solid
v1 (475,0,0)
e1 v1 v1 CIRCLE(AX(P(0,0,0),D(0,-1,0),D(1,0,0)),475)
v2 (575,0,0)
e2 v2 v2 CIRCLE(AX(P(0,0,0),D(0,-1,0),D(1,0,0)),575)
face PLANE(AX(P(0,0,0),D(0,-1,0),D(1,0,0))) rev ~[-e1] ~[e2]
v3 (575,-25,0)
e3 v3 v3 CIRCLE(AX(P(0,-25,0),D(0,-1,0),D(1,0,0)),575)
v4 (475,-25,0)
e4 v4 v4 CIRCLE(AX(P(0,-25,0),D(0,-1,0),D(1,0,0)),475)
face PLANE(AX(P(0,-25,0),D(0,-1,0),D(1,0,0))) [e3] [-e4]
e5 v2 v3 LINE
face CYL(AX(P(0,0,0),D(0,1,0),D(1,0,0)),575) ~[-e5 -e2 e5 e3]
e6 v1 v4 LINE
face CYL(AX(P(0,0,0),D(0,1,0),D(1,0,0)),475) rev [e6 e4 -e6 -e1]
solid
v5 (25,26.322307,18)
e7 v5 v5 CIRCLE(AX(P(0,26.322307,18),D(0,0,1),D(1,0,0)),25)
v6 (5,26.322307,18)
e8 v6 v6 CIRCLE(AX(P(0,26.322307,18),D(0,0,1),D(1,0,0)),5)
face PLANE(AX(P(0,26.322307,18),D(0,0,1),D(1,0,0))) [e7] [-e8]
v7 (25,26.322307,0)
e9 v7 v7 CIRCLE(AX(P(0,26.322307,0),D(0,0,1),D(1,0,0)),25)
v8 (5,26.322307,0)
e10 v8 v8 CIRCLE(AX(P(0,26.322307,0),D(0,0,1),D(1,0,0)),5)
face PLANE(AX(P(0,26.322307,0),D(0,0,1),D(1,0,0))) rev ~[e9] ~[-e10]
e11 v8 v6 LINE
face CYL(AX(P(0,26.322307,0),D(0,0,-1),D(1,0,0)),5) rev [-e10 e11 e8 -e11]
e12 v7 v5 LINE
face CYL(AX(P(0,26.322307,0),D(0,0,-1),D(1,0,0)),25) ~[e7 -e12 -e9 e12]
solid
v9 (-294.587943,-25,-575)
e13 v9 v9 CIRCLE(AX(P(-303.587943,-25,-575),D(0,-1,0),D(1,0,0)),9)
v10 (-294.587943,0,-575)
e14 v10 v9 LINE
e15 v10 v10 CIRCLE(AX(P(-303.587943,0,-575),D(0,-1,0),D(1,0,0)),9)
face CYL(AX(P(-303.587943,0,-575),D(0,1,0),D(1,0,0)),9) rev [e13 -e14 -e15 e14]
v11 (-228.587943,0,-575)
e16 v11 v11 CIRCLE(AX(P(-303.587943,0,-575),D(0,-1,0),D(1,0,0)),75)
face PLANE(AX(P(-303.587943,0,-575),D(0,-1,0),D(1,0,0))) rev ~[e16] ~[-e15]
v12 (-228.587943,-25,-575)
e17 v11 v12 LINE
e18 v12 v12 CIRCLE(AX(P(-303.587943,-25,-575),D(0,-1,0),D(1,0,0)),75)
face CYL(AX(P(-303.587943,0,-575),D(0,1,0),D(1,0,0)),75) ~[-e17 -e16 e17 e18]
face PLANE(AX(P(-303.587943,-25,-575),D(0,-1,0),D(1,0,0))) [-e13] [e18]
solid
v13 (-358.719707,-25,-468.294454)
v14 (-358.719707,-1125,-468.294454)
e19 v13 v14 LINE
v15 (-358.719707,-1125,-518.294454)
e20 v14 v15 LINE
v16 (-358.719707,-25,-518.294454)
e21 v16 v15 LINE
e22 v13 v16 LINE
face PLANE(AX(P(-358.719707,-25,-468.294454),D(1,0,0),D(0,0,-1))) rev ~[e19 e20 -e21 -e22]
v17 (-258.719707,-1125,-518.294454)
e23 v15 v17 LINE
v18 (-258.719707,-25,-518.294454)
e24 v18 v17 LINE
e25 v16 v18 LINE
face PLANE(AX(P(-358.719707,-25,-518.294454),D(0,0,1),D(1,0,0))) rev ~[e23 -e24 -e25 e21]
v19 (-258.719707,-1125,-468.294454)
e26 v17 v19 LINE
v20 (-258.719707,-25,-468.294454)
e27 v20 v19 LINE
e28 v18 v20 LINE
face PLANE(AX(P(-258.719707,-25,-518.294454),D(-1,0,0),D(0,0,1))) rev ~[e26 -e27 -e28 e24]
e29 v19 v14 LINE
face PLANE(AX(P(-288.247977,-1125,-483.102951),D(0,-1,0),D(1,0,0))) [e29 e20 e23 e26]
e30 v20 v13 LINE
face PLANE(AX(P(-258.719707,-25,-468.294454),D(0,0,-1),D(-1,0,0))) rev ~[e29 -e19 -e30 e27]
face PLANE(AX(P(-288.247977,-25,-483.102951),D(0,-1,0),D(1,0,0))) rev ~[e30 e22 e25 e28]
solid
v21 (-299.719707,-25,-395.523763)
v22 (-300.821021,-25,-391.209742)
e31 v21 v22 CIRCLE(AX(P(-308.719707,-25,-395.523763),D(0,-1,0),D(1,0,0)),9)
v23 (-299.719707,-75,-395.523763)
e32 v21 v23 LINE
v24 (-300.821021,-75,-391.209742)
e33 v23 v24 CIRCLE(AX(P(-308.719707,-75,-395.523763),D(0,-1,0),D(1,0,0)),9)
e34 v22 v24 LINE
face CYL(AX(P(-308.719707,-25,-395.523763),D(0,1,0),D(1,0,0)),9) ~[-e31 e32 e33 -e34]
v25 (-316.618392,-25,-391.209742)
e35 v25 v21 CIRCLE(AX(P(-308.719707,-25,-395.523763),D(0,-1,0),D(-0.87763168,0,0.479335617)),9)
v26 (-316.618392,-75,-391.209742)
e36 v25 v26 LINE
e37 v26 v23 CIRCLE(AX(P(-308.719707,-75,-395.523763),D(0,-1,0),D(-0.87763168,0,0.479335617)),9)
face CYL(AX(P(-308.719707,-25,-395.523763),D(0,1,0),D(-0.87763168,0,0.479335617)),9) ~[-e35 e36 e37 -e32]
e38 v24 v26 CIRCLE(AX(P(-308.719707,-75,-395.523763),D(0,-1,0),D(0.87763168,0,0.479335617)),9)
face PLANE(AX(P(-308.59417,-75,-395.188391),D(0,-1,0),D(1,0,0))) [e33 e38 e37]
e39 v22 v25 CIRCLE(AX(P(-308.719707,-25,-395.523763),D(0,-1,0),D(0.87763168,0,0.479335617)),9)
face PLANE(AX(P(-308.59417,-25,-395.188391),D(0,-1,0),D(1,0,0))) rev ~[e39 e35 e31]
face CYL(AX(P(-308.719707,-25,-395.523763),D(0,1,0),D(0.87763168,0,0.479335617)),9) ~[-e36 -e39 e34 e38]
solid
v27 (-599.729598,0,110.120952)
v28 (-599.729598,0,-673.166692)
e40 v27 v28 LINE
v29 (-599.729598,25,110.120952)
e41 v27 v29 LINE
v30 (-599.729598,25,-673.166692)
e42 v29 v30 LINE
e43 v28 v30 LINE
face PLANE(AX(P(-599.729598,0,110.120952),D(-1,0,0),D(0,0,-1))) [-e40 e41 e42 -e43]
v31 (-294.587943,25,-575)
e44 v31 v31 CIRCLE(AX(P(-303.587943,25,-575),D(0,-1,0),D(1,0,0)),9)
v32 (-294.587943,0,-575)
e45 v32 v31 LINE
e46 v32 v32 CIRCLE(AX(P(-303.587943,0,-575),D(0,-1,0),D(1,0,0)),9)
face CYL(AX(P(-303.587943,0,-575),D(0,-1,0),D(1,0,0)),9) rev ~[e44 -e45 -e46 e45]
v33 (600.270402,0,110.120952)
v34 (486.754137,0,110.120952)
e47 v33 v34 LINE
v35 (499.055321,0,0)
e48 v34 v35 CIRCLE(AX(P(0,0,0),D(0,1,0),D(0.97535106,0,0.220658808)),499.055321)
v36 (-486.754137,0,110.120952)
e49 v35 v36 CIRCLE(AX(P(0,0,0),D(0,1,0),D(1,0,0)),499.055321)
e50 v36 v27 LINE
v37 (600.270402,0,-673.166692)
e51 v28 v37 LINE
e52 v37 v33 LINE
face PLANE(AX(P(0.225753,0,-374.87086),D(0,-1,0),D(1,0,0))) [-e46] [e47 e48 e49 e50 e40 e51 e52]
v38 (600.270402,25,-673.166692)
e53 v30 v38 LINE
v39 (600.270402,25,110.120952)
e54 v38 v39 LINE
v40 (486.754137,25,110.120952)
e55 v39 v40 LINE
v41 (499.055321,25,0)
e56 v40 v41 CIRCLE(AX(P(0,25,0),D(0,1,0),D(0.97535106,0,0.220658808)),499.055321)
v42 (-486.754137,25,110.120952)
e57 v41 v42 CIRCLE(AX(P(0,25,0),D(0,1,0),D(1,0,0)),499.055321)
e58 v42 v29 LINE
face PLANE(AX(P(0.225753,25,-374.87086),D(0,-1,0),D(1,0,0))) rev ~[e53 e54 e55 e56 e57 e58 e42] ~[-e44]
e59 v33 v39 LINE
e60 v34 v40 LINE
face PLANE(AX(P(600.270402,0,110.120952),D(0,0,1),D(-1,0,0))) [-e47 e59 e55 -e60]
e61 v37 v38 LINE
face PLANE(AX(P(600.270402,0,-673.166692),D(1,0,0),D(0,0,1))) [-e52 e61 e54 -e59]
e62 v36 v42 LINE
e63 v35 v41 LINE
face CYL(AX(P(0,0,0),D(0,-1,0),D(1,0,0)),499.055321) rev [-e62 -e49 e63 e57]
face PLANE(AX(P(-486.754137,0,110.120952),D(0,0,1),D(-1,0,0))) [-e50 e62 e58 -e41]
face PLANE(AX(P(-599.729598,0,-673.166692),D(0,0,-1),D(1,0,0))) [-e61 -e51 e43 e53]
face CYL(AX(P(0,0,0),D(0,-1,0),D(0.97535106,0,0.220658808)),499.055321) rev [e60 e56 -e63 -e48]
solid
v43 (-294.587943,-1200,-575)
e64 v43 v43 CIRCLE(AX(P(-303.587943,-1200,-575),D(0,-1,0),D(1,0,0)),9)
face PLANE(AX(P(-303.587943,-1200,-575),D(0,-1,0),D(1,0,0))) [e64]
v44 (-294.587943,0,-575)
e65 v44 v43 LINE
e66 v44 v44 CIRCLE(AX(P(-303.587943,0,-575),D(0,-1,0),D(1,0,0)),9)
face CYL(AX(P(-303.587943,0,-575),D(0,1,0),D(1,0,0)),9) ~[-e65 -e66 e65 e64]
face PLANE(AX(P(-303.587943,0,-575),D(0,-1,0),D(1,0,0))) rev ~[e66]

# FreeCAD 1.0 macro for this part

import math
import FreeCAD as App
import Part
import Sketcher
from FreeCAD import Vector
Q = App.Units.Quantity

doc = App.newDocument("Part")
body = doc.addObject("PartDesign::Body", "Body")

# Sketch on XZ plane
sketch1 = doc.addObject("Sketcher::SketchObject", "Sketch")
body.addObject(sketch1)
sketch1.AttachmentSupport = (doc.XZ_Plane, [""])
sketch1.MapMode = "FlatFace"
sketch1.addGeometry([
    Part.Circle(Vector(0, 0, 0), Vector(0, 0, 1), 575),
    Part.Circle(Vector(0, 0, 0), Vector(0, 0, 1), 475),
], False)
sketch1.addConstraint([
    Sketcher.Constraint("Coincident", 0, 3, -1, 1),
    Sketcher.Constraint("Coincident", 1, 3, -1, 1),
    Sketcher.Constraint("Diameter", 0, Q("1150 mm")),
    Sketcher.Constraint("Diameter", 1, Q("950 mm")),
])
pad1 = doc.addObject("PartDesign::Pad", "Pad")
body.addObject(pad1)
pad1.Profile = sketch1
pad1.Length = 25
body2 = doc.addObject("PartDesign::Body", "Body001")

# Sketch on XZ plane
sketch2 = doc.addObject("Sketcher::SketchObject", "Sketch001")
body2.addObject(sketch2)
sketch2.AttachmentSupport = (doc.getObject("XZ_Plane001"), [""])
sketch2.MapMode = "FlatFace"
sketch2.addGeometry([
    Part.Circle(Vector(-304, -575, 0), Vector(0, 0, 1), 75),
    Part.Circle(Vector(-304, -575, 0), Vector(0, 0, 1), 9),
], False)
sketch2.addConstraint([
    Sketcher.Constraint("Coincident", 1, 3, 0, 3),
    Sketcher.Constraint("Diameter", 0, Q("150 mm")),
    Sketcher.Constraint("Diameter", 1, Q("18 mm")),
    Sketcher.Constraint("DistanceY", 0, 3, -1, 1, Q("575 mm")),
    Sketcher.Constraint("DistanceX", 0, 3, -1, 1, Q("303.587943 mm")),
])
pad2 = doc.addObject("PartDesign::Pad", "Pad001")
body2.addObject(pad2)
pad2.Profile = sketch2
pad2.Length = 25
body3 = doc.addObject("PartDesign::Body", "Body002")

# Sketch on XZ plane
sketch3 = doc.addObject("Sketcher::SketchObject", "Sketch002")
body3.addObject(sketch3)
sketch3.AttachmentSupport = (doc.getObject("XZ_Plane002"), [""])
sketch3.MapMode = "FlatFace"
sketch3.addGeometry(Part.Circle(Vector(-304, -575, 0), Vector(0, 0, 1), 9), False)
sketch3.addConstraint([
    Sketcher.Constraint("Diameter", 0, Q("18 mm")),
    Sketcher.Constraint("DistanceY", 0, 3, -1, 1, Q("575 mm")),
    Sketcher.Constraint("DistanceX", 0, 3, -1, 1, Q("303.587943 mm")),
])
pad3 = doc.addObject("PartDesign::Pad", "Pad002")
body3.addObject(pad3)
pad3.Profile = sketch3
pad3.Length = 1200
body4 = doc.addObject("PartDesign::Body", "Body003")

# Sketch on XY plane
sketch4 = doc.addObject("Sketcher::SketchObject", "Sketch003")
body4.addObject(sketch4)
sketch4.AttachmentSupport = (doc.getObject("XY_Plane003"), [""])
sketch4.MapMode = "FlatFace"
sketch4.addGeometry([
    Part.Circle(Vector(0, 26, 0), Vector(0, 0, 1), 25),
    Part.Circle(Vector(0, 26, 0), Vector(0, 0, 1), 5),
], False)
sketch4.addConstraint([
    Sketcher.Constraint("Coincident", 1, 3, 0, 3),
    Sketcher.Constraint("PointOnObject", 0, 3, -2),
    Sketcher.Constraint("Diameter", 0, Q("50 mm")),
    Sketcher.Constraint("Diameter", 1, Q("10 mm")),
    Sketcher.Constraint("DistanceY", -1, 1, 0, 3, Q("26.322307 mm")),
])
pad4 = doc.addObject("PartDesign::Pad", "Pad003")
body4.addObject(pad4)
pad4.Profile = sketch4
pad4.Length = 18
body5 = doc.addObject("PartDesign::Body", "Body004")

# Sketch on XZ plane
sketch5 = doc.addObject("Sketcher::SketchObject", "Sketch004")
body5.addObject(sketch5)
sketch5.AttachmentSupport = (doc.getObject("XZ_Plane004"), [""])
sketch5.MapMode = "FlatFace"
sketch5.addGeometry([
    Part.LineSegment(Vector(600, 110, 0), Vector(487, 110, 0)),  # 0
    Part.ArcOfCircle(Part.Circle(Vector(0, 0, 0), Vector(0, 0, 1), 499), math.radians(0), math.radians(12.75)),  # 1
    Part.ArcOfCircle(Part.Circle(Vector(0, 0, 0), Vector(0, 0, 1), 499), math.radians(167), math.radians(360)),  # 2
    Part.LineSegment(Vector(-487, 110, 0), Vector(-600, 110, 0)),  # 3
    Part.LineSegment(Vector(-600, 110, 0), Vector(-600, -673, 0)),  # 4
    Part.LineSegment(Vector(-600, -673, 0), Vector(600, -673, 0)),  # 5
    Part.LineSegment(Vector(600, -673, 0), Vector(600, 110, 0)),  # 6
    Part.Circle(Vector(-304, -575, 0), Vector(0, 0, 1), 9),  # 7
], False)
sketch5.addConstraint([
    Sketcher.Constraint("Coincident", 0, 2, 1, 2),
    Sketcher.Constraint("Coincident", 1, 1, 2, 2),
    Sketcher.Constraint("Coincident", 2, 1, 3, 1),
    Sketcher.Constraint("Coincident", 3, 2, 4, 1),
    Sketcher.Constraint("Coincident", 4, 2, 5, 1),
    Sketcher.Constraint("Coincident", 5, 2, 6, 1),
    Sketcher.Constraint("Coincident", 6, 2, 0, 1),
    Sketcher.Constraint("Horizontal", 0),
    Sketcher.Constraint("Horizontal", 3),
    Sketcher.Constraint("Vertical", 4),
    Sketcher.Constraint("Horizontal", 5),
    Sketcher.Constraint("Vertical", 6),
    Sketcher.Constraint("Coincident", 1, 3, -1, 1),
    Sketcher.Constraint("Coincident", 2, 3, -1, 1),
    Sketcher.Constraint("PointOnObject", 1, 1, -1),
    Sketcher.Constraint("Horizontal", 3, 2, 6, 2),
    Sketcher.Constraint("Diameter", 7, Q("18 mm")),
    Sketcher.Constraint("DistanceX", 5, 1, 5, 2, Q("1200 mm")),
    Sketcher.Constraint("DistanceY", 7, 3, -1, 1, Q("575 mm")),
    Sketcher.Constraint("Radius", 1, Q("499.055321 mm")),
    Sketcher.Constraint("DistanceX", 3, 2, 3, 1, Q("112.975461 mm")),
    Sketcher.Constraint("DistanceX", 0, 2, 0, 1, Q("113.516266 mm")),
    Sketcher.Constraint("DistanceY", 4, 2, 4, 1, Q("783.287644 mm")),
    Sketcher.Constraint("DistanceX", 7, 3, 0, 2, Q("790.34208 mm")),
])
pad5 = doc.addObject("PartDesign::Pad", "Pad004")
body5.addObject(pad5)
pad5.Profile = sketch5
pad5.Length = 25
pad5.Reversed = True
body6 = doc.addObject("PartDesign::Body", "Body005")

# Sketch on XZ plane
sketch6 = doc.addObject("Sketcher::SketchObject", "Sketch005")
body6.addObject(sketch6)
sketch6.AttachmentSupport = (doc.getObject("XZ_Plane005"), [""])
sketch6.MapMode = "FlatFace"
sketch6.AttachmentOffset = App.Placement(Vector(0, 0, 25), App.Rotation())
sketch6.addGeometry([
    Part.ArcOfCircle(Part.Circle(Vector(-308.7, -395.5, 0), Vector(0, 0, 1), 9), math.radians(151), math.radians(360)),
    Part.ArcOfCircle(Part.Circle(Vector(-308.7, -395.5, 0), Vector(0, 0, 1), 9), math.radians(0), math.radians(29)),
    Part.ArcOfCircle(Part.Circle(Vector(-308.7, -395.5, 0), Vector(0, 0, 1), 9), math.radians(29), math.radians(151)),
], False)
sketch6.addConstraint([
    Sketcher.Constraint("Tangent", 0, 2, 1, 1),
    Sketcher.Constraint("Tangent", 1, 2, 2, 1),
    Sketcher.Constraint("Tangent", 2, 2, 0, 1),
    Sketcher.Constraint("Horizontal", 2, 3, 0, 2),
    Sketcher.Constraint("Horizontal", 1, 2, 2, 2),
    Sketcher.Constraint("Radius", 0, Q("9 mm")),
    Sketcher.Constraint("DistanceX", 1, 2, -1, 1, Q("300.821021 mm")),
    Sketcher.Constraint("DistanceX", 2, 2, -1, 1, Q("316.618392 mm")),
    Sketcher.Constraint("DistanceY", 0, 3, -1, 1, Q("395.523763 mm")),
])
pad6 = doc.addObject("PartDesign::Pad", "Pad005")
body6.addObject(pad6)
pad6.Profile = sketch6
pad6.Length = 50
body7 = doc.addObject("PartDesign::Body", "Body006")

# Sketch on XZ plane
sketch7 = doc.addObject("Sketcher::SketchObject", "Sketch006")
body7.addObject(sketch7)
sketch7.AttachmentSupport = (doc.getObject("XZ_Plane006"), [""])
sketch7.MapMode = "FlatFace"
sketch7.AttachmentOffset = App.Placement(Vector(0, 0, 25), App.Rotation())
sketch7.addGeometry([
    Part.LineSegment(Vector(-259, -468, 0), Vector(-359, -468, 0)),
    Part.LineSegment(Vector(-359, -468, 0), Vector(-359, -518, 0)),
    Part.LineSegment(Vector(-359, -518, 0), Vector(-259, -518, 0)),
    Part.LineSegment(Vector(-259, -518, 0), Vector(-259, -468, 0)),
], False)
sketch7.addConstraint([
    Sketcher.Constraint("Coincident", 0, 2, 1, 1),
    Sketcher.Constraint("Coincident", 1, 2, 2, 1),
    Sketcher.Constraint("Coincident", 2, 2, 3, 1),
    Sketcher.Constraint("Coincident", 3, 2, 0, 1),
    Sketcher.Constraint("Horizontal", 0),
    Sketcher.Constraint("Vertical", 1),
    Sketcher.Constraint("Horizontal", 2),
    Sketcher.Constraint("Vertical", 3),
    Sketcher.Constraint("DistanceX", 0, 2, 0, 1, Q("100 mm")),
    Sketcher.Constraint("DistanceY", 1, 2, 1, 1, Q("50 mm")),
    Sketcher.Constraint("DistanceX", 0, 2, -1, 1, Q("358.719707 mm")),
    Sketcher.Constraint("DistanceY", 0, 2, -1, 1, Q("468.294454 mm")),
])
pad7 = doc.addObject("PartDesign::Pad", "Pad006")
body7.addObject(pad7)
pad7.Profile = sketch7
pad7.Length = 1100

doc.recompute()
